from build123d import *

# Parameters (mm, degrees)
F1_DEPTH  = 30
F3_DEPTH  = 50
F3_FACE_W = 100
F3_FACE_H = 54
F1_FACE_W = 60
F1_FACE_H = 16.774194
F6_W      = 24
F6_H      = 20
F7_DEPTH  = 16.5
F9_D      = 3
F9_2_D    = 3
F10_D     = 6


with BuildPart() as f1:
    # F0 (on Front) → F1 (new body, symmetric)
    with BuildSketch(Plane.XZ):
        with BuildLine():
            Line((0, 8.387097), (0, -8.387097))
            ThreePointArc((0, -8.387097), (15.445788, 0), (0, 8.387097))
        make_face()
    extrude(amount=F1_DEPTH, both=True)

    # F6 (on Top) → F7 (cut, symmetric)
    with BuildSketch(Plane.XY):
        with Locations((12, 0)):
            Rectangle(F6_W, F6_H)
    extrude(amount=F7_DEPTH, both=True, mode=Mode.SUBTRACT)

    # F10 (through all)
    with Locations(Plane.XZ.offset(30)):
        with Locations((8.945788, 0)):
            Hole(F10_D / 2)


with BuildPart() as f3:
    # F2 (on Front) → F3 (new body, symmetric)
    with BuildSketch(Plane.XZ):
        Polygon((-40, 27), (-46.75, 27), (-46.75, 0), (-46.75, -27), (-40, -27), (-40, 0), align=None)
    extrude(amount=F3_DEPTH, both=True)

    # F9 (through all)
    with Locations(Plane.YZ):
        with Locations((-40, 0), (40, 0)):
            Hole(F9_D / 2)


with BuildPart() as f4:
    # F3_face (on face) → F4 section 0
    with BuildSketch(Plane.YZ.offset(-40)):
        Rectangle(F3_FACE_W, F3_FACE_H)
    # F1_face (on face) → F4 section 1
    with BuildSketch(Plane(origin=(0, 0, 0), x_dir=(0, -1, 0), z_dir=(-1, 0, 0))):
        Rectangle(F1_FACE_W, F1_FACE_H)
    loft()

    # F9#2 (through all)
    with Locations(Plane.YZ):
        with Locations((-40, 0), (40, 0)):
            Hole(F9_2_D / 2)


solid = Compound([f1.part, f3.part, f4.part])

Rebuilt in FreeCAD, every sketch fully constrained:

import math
import FreeCAD as App
import Part
import Sketcher
from FreeCAD import Vector
Q = App.Units.Quantity


def add_polygon(sketch, points):
    """Adds a closed chain of lines whose ends are joined by coincident constraints."""
    first, n = sketch.GeometryCount, len(points)
    for a, b in zip(points, points[1:] + points[:1]):
        sketch.addGeometry(Part.LineSegment(App.Vector(*a, 0), App.Vector(*b, 0)), False)
    for i in range(n):
        sketch.addConstraint(Sketcher.Constraint("Coincident", first + i, 2, first + (i + 1) % n, 1))

doc = App.newDocument("Part")
body = doc.addObject("PartDesign::Body", "Body")
body.AllowCompound = True

# Sketch on XZ plane
sketch1 = doc.addObject("Sketcher::SketchObject", "Sketch")
body.addObject(sketch1)
sketch1.AttachmentSupport = (doc.XZ_Plane, [""])
sketch1.MapMode = "FlatFace"
sketch1.addGeometry([
    Part.LineSegment(Vector(0, 8, 0), Vector(0, -8, 0)),
    Part.ArcOfCircle(Part.Circle(Vector(5, 0, 0), Vector(0, 0, 1), 10), math.radians(-123), math.radians(123)),
], False)
sketch1.addConstraint([
    Sketcher.Constraint("Coincident", 0, 1, 1, 2),
    Sketcher.Constraint("Coincident", 1, 1, 0, 2),
    Sketcher.Constraint("Vertical", 0),
    Sketcher.Constraint("Symmetric", 0, 1, 1, 1, -1, 1),
    Sketcher.Constraint("Radius", 1, Q("10 mm")),
    Sketcher.Constraint("DistanceY", 0, 2, 0, 1, Q("16.774194 mm")),
])
pad1 = doc.addObject("PartDesign::Pad", "Pad")
body.addObject(pad1)
pad1.Profile = sketch1
pad1.Length = 60
pad1.Midplane = True

# Sketch on XY plane
sketch2 = doc.addObject("Sketcher::SketchObject", "Sketch001")
body.addObject(sketch2)
sketch2.AttachmentSupport = (doc.XY_Plane, [""])
sketch2.MapMode = "FlatFace"
add_polygon(sketch2, [(0, 10), (0, -10), (24, -10), (24, 10)])  # lines 0-3
sketch2.addConstraint([
    Sketcher.Constraint("Vertical", 0),
    Sketcher.Constraint("Horizontal", 1),
    Sketcher.Constraint("Vertical", 2),
    Sketcher.Constraint("Horizontal", 3),
    Sketcher.Constraint("Symmetric", 0, 2, 3, 2, -1, 1),
    Sketcher.Constraint("DistanceX", 1, 1, 1, 2, Q("24 mm")),
    Sketcher.Constraint("DistanceY", 0, 2, 0, 1, Q("20 mm")),
])
pocket1 = doc.addObject("PartDesign::Pocket", "Pocket")
body.addObject(pocket1)
pocket1.Profile = sketch2
pocket1.Length = 33
pocket1.Midplane = True

# Sketch on XZ plane
sketch3 = doc.addObject("Sketcher::SketchObject", "Sketch002")
body.addObject(sketch3)
sketch3.AttachmentSupport = (doc.XZ_Plane, [""])
sketch3.MapMode = "FlatFace"
sketch3.AttachmentOffset = App.Placement(Vector(0, 0, 30), App.Rotation())
sketch3.addGeometry(Part.Circle(Vector(8.9, 0, 0), Vector(0, 0, 1), 3), False)
sketch3.addConstraint([
    Sketcher.Constraint("PointOnObject", 0, 3, -1),
    Sketcher.Constraint("Diameter", 0, Q("6 mm")),
    Sketcher.Constraint("DistanceX", -1, 1, 0, 3, Q("8.945788 mm")),
])
doc.recompute()
hole = doc.addObject("PartDesign::Hole", "Hole")
body.addObject(hole)
hole.Profile = sketch3
hole.ThreadType = "None"
hole.Diameter = 6
hole.DepthType = "ThroughAll"
body2 = doc.addObject("PartDesign::Body", "Body001")

# Sketch on XZ plane
sketch4 = doc.addObject("Sketcher::SketchObject", "Sketch003")
body2.addObject(sketch4)
sketch4.AttachmentSupport = (doc.getObject("XZ_Plane001"), [""])
sketch4.MapMode = "FlatFace"
add_polygon(sketch4, [(-40, 27), (-47, 27), (-47, -27), (-40, -27)])  # lines 0-3
sketch4.addConstraint([
    Sketcher.Constraint("Horizontal", 0),
    Sketcher.Constraint("Vertical", 1),
    Sketcher.Constraint("Horizontal", 2),
    Sketcher.Constraint("Vertical", 3),
    Sketcher.Constraint("DistanceY", 1, 2, 1, 1, Q("54 mm")),
    Sketcher.Constraint("DistanceY", -1, 1, 0, 2, Q("27 mm")),
    Sketcher.Constraint("DistanceX", 2, 2, -1, 1, Q("40 mm")),
    Sketcher.Constraint("DistanceX", 0, 2, 0, 1, Q("6.75 mm")),
])
pad2 = doc.addObject("PartDesign::Pad", "Pad001")
body2.addObject(pad2)
pad2.Profile = sketch4
pad2.Length = 100
pad2.Midplane = True

# Sketch on YZ plane
sketch5 = doc.addObject("Sketcher::SketchObject", "Sketch004")
body2.addObject(sketch5)
sketch5.AttachmentSupport = (doc.getObject("YZ_Plane001"), [""])
sketch5.MapMode = "FlatFace"
sketch5.addGeometry([
    Part.Circle(Vector(-40, 0, 0), Vector(0, 0, 1), 1.5),
    Part.Circle(Vector(40, 0, 0), Vector(0, 0, 1), 1.5),
], False)
sketch5.addConstraint([
    Sketcher.Constraint("Equal", 0, 1),
    Sketcher.Constraint("Symmetric", 0, 3, 1, 3, -1, 1),
    Sketcher.Constraint("PointOnObject", 0, 3, -1),
    Sketcher.Constraint("Diameter", 0, Q("3 mm")),
    Sketcher.Constraint("DistanceX", 0, 3, -1, 1, Q("40 mm")),
])
doc.recompute()
hole2 = doc.addObject("PartDesign::Hole", "Hole001")
body2.addObject(hole2)
hole2.Profile = sketch5
hole2.ThreadType = "None"
hole2.Diameter = 3
hole2.DepthType = "ThroughAll"
body3 = doc.addObject("PartDesign::Body", "Body002")

# Sketch on YZ plane
sketch6 = doc.addObject("Sketcher::SketchObject", "Sketch005")
body3.addObject(sketch6)
sketch6.AttachmentSupport = (doc.getObject("YZ_Plane002"), [""])
sketch6.MapMode = "FlatFace"
sketch6.AttachmentOffset = App.Placement(Vector(0, 0, -40), App.Rotation())
add_polygon(sketch6, [(-50, 27), (-50, -27), (50, -27), (50, 27)])  # lines 0-3
sketch6.addConstraint([
    Sketcher.Constraint("Vertical", 0),
    Sketcher.Constraint("Horizontal", 1),
    Sketcher.Constraint("Vertical", 2),
    Sketcher.Constraint("Horizontal", 3),
    Sketcher.Constraint("Symmetric", 0, 2, 2, 2, -1, 1),
    Sketcher.Constraint("DistanceX", 1, 1, 1, 2, Q("100 mm")),
    Sketcher.Constraint("DistanceY", 0, 2, 0, 1, Q("54 mm")),
])

# Sketch on YZ plane
sketch7 = doc.addObject("Sketcher::SketchObject", "Sketch006")
body3.addObject(sketch7)
sketch7.AttachmentSupport = (doc.getObject("YZ_Plane002"), [""])
sketch7.MapMode = "FlatFace"
add_polygon(sketch7, [(30, 8), (30, -8), (-30, -8), (-30, 8)])  # lines 0-3
sketch7.addConstraint([
    Sketcher.Constraint("Vertical", 0),
    Sketcher.Constraint("Horizontal", 1),
    Sketcher.Constraint("Vertical", 2),
    Sketcher.Constraint("Horizontal", 3),
    Sketcher.Constraint("Symmetric", 0, 2, 2, 2, -1, 1),
    Sketcher.Constraint("DistanceX", 1, 2, 1, 1, Q("60 mm")),
    Sketcher.Constraint("DistanceY", 0, 2, 0, 1, Q("16.774194 mm")),
])

additiveloft = doc.addObject("PartDesign::AdditiveLoft", "AdditiveLoft")
body3.addObject(additiveloft)
additiveloft.Profile = sketch6
additiveloft.Sections = [sketch7]

# Sketch on YZ plane
sketch8 = doc.addObject("Sketcher::SketchObject", "Sketch007")
body3.addObject(sketch8)
sketch8.AttachmentSupport = (doc.getObject("YZ_Plane002"), [""])
sketch8.MapMode = "FlatFace"
sketch8.addGeometry([
    Part.Circle(Vector(-40, 0, 0), Vector(0, 0, 1), 1.5),
    Part.Circle(Vector(40, 0, 0), Vector(0, 0, 1), 1.5),
], False)
sketch8.addConstraint([
    Sketcher.Constraint("Equal", 0, 1),
    Sketcher.Constraint("Symmetric", 0, 3, 1, 3, -1, 1),
    Sketcher.Constraint("PointOnObject", 0, 3, -1),
    Sketcher.Constraint("Diameter", 0, Q("3 mm")),
    Sketcher.Constraint("DistanceX", 0, 3, -1, 1, Q("40 mm")),
])
doc.recompute()
hole3 = doc.addObject("PartDesign::Hole", "Hole002")
body3.addObject(hole3)
hole3.Profile = sketch8
hole3.ThreadType = "None"
hole3.Diameter = 3
hole3.DepthType = "ThroughAll"

doc.recompute()
